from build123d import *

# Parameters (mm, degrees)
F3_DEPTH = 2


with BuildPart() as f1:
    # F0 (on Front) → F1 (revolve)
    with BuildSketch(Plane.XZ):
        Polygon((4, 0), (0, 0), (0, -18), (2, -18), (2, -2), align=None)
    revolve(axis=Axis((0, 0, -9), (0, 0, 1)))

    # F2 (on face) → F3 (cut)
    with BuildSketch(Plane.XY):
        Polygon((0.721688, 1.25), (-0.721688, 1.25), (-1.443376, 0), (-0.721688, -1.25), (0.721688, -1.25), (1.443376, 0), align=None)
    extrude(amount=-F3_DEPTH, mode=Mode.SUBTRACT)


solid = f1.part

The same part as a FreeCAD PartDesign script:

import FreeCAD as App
import Part
import Sketcher

V = App.Vector
Q = App.Units.Quantity


def add_polygon(sketch, points):
    """Adds a closed chain of lines whose ends are joined by coincident constraints."""
    first, n = sketch.GeometryCount, len(points)
    for a, b in zip(points, points[1:] + points[:1]):
        sketch.addGeometry(Part.LineSegment(App.Vector(*a, 0), App.Vector(*b, 0)), False)
    for i in range(n):
        sketch.addConstraint(Sketcher.Constraint("Coincident", first + i, 2, first + (i + 1) % n, 1))

doc = App.newDocument("Part")
body = doc.addObject("PartDesign::Body", "Body")

# Sketch on XZ plane
sketch1 = body.newObject("Sketcher::SketchObject", "Sketch")
sketch1.AttachmentSupport = (doc.getObject("XZ_Plane"), [""])
sketch1.MapMode = "FlatFace"
add_polygon(sketch1, [(4, 0), (0, 0), (0, -18), (2, -18), (2, -2)])  # lines 0-4
sketch1.addConstraint([
    Sketcher.Constraint("Horizontal", 0),
    Sketcher.Constraint("Vertical", 1),
    Sketcher.Constraint("Horizontal", 2),
    Sketcher.Constraint("Vertical", 3),
    Sketcher.Constraint("Coincident", 0, 2, -1, 1),
    Sketcher.Constraint("DistanceX", 0, 2, 0, 1, Q("4 mm")),
    Sketcher.Constraint("DistanceX", 2, 1, 2, 2, Q("2 mm")),
    Sketcher.Constraint("DistanceY", 1, 2, 1, 1, Q("18 mm")),
    Sketcher.Constraint("DistanceY", 3, 1, 3, 2, Q("16 mm")),
])
revolution = body.newObject("PartDesign::Revolution", "Revolution")
revolution.Profile = sketch1
revolution.ReferenceAxis = (sketch1, ["V_Axis"])
revolution.Angle = 360

# Sketch on XY plane
sketch2 = body.newObject("Sketcher::SketchObject", "Sketch001")
sketch2.AttachmentSupport = (doc.getObject("XY_Plane"), [""])
sketch2.MapMode = "FlatFace"
add_polygon(sketch2, [(0.7, 1.2), (-0.7, 1.2), (-1.4, 0), (-0.7, -1.2), (0.7, -1.2), (1.4, 0)])  # lines 0-5
sketch2.addConstraint([
    Sketcher.Constraint("Horizontal", 0),
    Sketcher.Constraint("Horizontal", 3),
    Sketcher.Constraint("Symmetric", 0, 2, 3, 2, -1, 1),
    Sketcher.Constraint("Symmetric", 1, 2, 4, 2, -1, 1),
    Sketcher.Constraint("PointOnObject", 1, 2, -1),
    Sketcher.Constraint("Parallel", 2, 5),
    Sketcher.Constraint("Vertical", 0, 2, 2, 2),
    Sketcher.Constraint("Angle", 1, Q("-120.000006 deg")),
    Sketcher.Constraint("DistanceY", 2, 2, 0, 2, Q("2.5 mm")),
    Sketcher.Constraint("DistanceX", 0, 2, 0, 1, Q("1.443376 mm")),
])
pocket1 = body.newObject("PartDesign::Pocket", "Pocket")
pocket1.Profile = sketch2
pocket1.Length = 2

doc.recompute()
